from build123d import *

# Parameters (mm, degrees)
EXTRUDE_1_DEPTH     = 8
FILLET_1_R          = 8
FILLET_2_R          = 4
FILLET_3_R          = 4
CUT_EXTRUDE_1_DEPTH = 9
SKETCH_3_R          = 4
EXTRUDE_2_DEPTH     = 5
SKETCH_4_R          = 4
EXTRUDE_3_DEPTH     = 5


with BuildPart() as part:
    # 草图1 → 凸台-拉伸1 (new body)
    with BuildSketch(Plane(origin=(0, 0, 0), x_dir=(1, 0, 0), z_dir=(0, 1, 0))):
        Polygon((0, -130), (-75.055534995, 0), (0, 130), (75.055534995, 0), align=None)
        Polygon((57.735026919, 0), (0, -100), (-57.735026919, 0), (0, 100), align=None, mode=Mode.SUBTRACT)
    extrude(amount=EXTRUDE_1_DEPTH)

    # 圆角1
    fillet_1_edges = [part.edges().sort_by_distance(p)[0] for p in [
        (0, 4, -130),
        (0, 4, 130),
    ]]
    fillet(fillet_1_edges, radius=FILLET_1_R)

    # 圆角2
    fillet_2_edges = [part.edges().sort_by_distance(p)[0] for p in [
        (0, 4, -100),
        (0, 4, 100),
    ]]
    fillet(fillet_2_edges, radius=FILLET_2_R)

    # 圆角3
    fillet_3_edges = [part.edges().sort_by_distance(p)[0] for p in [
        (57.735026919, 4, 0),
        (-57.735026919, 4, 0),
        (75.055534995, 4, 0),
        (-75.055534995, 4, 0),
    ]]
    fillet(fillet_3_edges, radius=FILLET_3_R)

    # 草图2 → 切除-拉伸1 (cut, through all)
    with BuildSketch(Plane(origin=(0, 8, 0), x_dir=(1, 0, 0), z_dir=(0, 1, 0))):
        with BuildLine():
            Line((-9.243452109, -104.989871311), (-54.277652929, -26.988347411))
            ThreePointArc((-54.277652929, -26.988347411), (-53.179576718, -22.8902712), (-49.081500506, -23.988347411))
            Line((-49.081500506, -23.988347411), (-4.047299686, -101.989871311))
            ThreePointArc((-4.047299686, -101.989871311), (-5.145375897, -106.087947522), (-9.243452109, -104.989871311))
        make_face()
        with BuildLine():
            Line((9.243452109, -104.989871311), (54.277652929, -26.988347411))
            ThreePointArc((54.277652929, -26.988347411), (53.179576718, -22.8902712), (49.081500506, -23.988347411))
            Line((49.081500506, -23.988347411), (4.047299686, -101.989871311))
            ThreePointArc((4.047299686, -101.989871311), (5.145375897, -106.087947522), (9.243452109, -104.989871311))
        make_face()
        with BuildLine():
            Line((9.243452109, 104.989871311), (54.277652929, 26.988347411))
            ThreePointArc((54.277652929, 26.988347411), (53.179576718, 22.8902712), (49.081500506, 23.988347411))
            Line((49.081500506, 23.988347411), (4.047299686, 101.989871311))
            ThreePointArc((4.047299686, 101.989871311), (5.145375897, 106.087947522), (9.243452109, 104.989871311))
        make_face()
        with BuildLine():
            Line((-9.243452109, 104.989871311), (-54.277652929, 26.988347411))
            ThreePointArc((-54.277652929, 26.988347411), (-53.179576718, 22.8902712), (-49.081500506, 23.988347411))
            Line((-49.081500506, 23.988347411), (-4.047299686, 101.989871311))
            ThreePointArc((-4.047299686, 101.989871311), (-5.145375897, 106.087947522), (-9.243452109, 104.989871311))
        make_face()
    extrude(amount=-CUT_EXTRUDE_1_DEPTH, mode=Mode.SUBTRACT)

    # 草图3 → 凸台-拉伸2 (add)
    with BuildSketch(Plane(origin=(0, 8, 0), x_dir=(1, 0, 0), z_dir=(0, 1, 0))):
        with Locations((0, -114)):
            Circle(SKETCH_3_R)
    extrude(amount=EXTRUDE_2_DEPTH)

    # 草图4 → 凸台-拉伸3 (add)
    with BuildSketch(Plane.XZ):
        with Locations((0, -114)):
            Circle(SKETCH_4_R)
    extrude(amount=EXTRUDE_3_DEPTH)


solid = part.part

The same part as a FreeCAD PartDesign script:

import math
import FreeCAD as App
import Part
import Sketcher
from FreeCAD import Vector
Q = App.Units.Quantity


def edges_at(feature, points):
    """Names of the edges that pass closest to the given points."""
    edges = feature.Shape.Edges
    near = lambda p: min(range(len(edges)), key=lambda i: edges[i].distToShape(Part.Vertex(*p))[0])
    return sorted({f"Edge{near(p) + 1}" for p in points})

doc = App.newDocument("Part")
body = doc.addObject("PartDesign::Body", "Body")

# Sketch on XZ plane
sketch1 = body.newObject("Sketcher::SketchObject", "Sketch")
sketch1.AttachmentSupport = (doc.getObject("XZ_Plane"), [""])
sketch1.MapMode = "FlatFace"
sketch1.addGeometry([
    Part.LineSegment(Vector(-75, 0, 0), Vector(0, 130, 0)),  # 0
    Part.LineSegment(Vector(0, 130, 0), Vector(75, 0, 0)),  # 1
    Part.LineSegment(Vector(75, 0, 0), Vector(0, -130, 0)),  # 2
    Part.LineSegment(Vector(0, -130, 0), Vector(-75, 0, 0)),  # 3
    Part.LineSegment(Vector(58, 0, 0), Vector(0, 100, 0)),  # 4
    Part.LineSegment(Vector(0, 100, 0), Vector(-58, 0, 0)),  # 5
    Part.LineSegment(Vector(-58, 0, 0), Vector(0, -100, 0)),  # 6
    Part.LineSegment(Vector(0, -100, 0), Vector(58, 0, 0)),  # 7
], False)
sketch1.addConstraint([
    Sketcher.Constraint("Coincident", 0, 2, 1, 1),
    Sketcher.Constraint("Coincident", 1, 2, 2, 1),
    Sketcher.Constraint("Coincident", 2, 2, 3, 1),
    Sketcher.Constraint("Coincident", 3, 2, 0, 1),
    Sketcher.Constraint("Coincident", 4, 2, 5, 1),
    Sketcher.Constraint("Coincident", 5, 2, 6, 1),
    Sketcher.Constraint("Coincident", 6, 2, 7, 1),
    Sketcher.Constraint("Coincident", 7, 2, 4, 1),
    Sketcher.Constraint("Symmetric", 0, 2, 2, 2, -1, 1),
    Sketcher.Constraint("Symmetric", 1, 2, 3, 2, -1, 1),
    Sketcher.Constraint("Symmetric", 4, 2, 6, 2, -1, 1),
    Sketcher.Constraint("Symmetric", 5, 2, 7, 2, -1, 1),
    Sketcher.Constraint("PointOnObject", 0, 2, -2),
    Sketcher.Constraint("PointOnObject", 1, 2, -1),
    Sketcher.Constraint("PointOnObject", 4, 2, -2),
    Sketcher.Constraint("PointOnObject", 5, 2, -1),
    Sketcher.Constraint("Parallel", 3, 4),
    Sketcher.Constraint("Angle", 0, Q("60 deg")),
    Sketcher.Constraint("DistanceY", -1, 1, 0, 2, 130.0),
    Sketcher.Constraint("DistanceY", -1, 1, 4, 2, 100.0),
])
pad1 = body.newObject("PartDesign::Pad", "Pad")
pad1.Profile = sketch1
pad1.Length = 8
pad1.Reversed = True
doc.recompute()

fillet = body.newObject("PartDesign::Fillet", "Fillet")
fillet.Base = (pad1, edges_at(pad1, [(0, 4, -130), (0, 4, 130)]))
fillet.Radius = 8
doc.recompute()

fillet2 = body.newObject("PartDesign::Fillet", "Fillet001")
fillet2.Base = (fillet, edges_at(fillet, [(0, 4, -100), (0, 4, 100)]))
fillet2.Radius = 4
doc.recompute()

fillet3 = body.newObject("PartDesign::Fillet", "Fillet002")
fillet3.Base = (fillet2, edges_at(fillet2, [
    (57.735, 4, 0),
    (-57.735, 4, 0),
    (75.056, 4, 0),
    (-75.056, 4, 0),
]))
fillet3.Radius = 4

# Sketch on XZ plane
sketch2 = body.newObject("Sketcher::SketchObject", "Sketch001")
sketch2.AttachmentSupport = (doc.getObject("XZ_Plane"), [""])
sketch2.MapMode = "FlatFace"
sketch2.AttachmentOffset = App.Placement(Vector(0, 0, -8), App.Rotation())
sketch2.addGeometry([
    Part.LineSegment(Vector(-54.3, 27, 0), Vector(-9.2, 105, 0)),  # 0
    Part.ArcOfCircle(Part.Circle(Vector(-6.6, 103.5, 0), Vector(0, 0, 1), 3), math.radians(-30), math.radians(150)),  # 1
    Part.LineSegment(Vector(-4, 102, 0), Vector(-49.1, 24, 0)),  # 2
    Part.ArcOfCircle(Part.Circle(Vector(-51.7, 25.5, 0), Vector(0, 0, 1), 3), math.radians(150), math.radians(330)),  # 3
    Part.LineSegment(Vector(9.2, 105, 0), Vector(54.3, 27, 0)),  # 4
    Part.ArcOfCircle(Part.Circle(Vector(51.7, 25.5, 0), Vector(0, 0, 1), 3), math.radians(-150), math.radians(30)),  # 5
    Part.LineSegment(Vector(49.1, 24, 0), Vector(4, 102, 0)),  # 6
    Part.ArcOfCircle(Part.Circle(Vector(6.6, 103.5, 0), Vector(0, 0, 1), 3), math.radians(30), math.radians(210)),  # 7
    Part.LineSegment(Vector(54.3, -27, 0), Vector(9.2, -105, 0)),  # 8
    Part.ArcOfCircle(Part.Circle(Vector(6.6, -103.5, 0), Vector(0, 0, 1), 3), math.radians(150), math.radians(330)),  # 9
    Part.LineSegment(Vector(4, -102, 0), Vector(49.1, -24, 0)),  # 10
    Part.ArcOfCircle(Part.Circle(Vector(51.7, -25.5, 0), Vector(0, 0, 1), 3), math.radians(-30), math.radians(150)),  # 11
    Part.LineSegment(Vector(-9.2, -105, 0), Vector(-54.3, -27, 0)),  # 12
    Part.ArcOfCircle(Part.Circle(Vector(-51.7, -25.5, 0), Vector(0, 0, 1), 3), math.radians(30), math.radians(210)),  # 13
    Part.LineSegment(Vector(-49.1, -24, 0), Vector(-4, -102, 0)),  # 14
    Part.ArcOfCircle(Part.Circle(Vector(-6.6, -103.5, 0), Vector(0, 0, 1), 3), math.radians(-150), math.radians(30)),  # 15
], False)
sketch2.addConstraint([
    Sketcher.Constraint("Tangent", 0, 2, 1, 2),
    Sketcher.Constraint("Tangent", 1, 1, 2, 1),
    Sketcher.Constraint("Tangent", 2, 2, 3, 2),
    Sketcher.Constraint("Tangent", 3, 1, 0, 1),
    Sketcher.Constraint("Tangent", 4, 2, 5, 2),
    Sketcher.Constraint("Tangent", 5, 1, 6, 1),
    Sketcher.Constraint("Tangent", 6, 2, 7, 2),
    Sketcher.Constraint("Tangent", 7, 1, 4, 1),
    Sketcher.Constraint("Tangent", 8, 2, 9, 2),
    Sketcher.Constraint("Tangent", 9, 1, 10, 1),
    Sketcher.Constraint("Tangent", 10, 2, 11, 2),
    Sketcher.Constraint("Tangent", 11, 1, 8, 1),
    Sketcher.Constraint("Tangent", 12, 2, 13, 2),
    Sketcher.Constraint("Tangent", 13, 1, 14, 1),
    Sketcher.Constraint("Tangent", 14, 2, 15, 2),
    Sketcher.Constraint("Tangent", 15, 1, 12, 1),
    Sketcher.Constraint("Equal", 1, 3),
    Sketcher.Constraint("Equal", 3, 5),
    Sketcher.Constraint("Equal", 5, 7),
    Sketcher.Constraint("Equal", 7, 9),
    Sketcher.Constraint("Equal", 9, 11),
    Sketcher.Constraint("Equal", 11, 13),
    Sketcher.Constraint("Equal", 13, 15),
    Sketcher.Constraint("Symmetric", 1, 3, 9, 3, -1, 1),
    Sketcher.Constraint("Symmetric", 3, 3, 11, 3, -1, 1),
    Sketcher.Constraint("Symmetric", 5, 3, 13, 3, -1, 1),
    Sketcher.Constraint("Symmetric", 7, 3, 15, 3, -1, 1),
    Sketcher.Constraint("Symmetric", 3, 3, 5, 3, -2),
    Sketcher.Constraint("Symmetric", 1, 3, 7, 3, -2),
    Sketcher.Constraint("Radius", 1, 3.0),
    Sketcher.Constraint("Angle", 0, Q("60 deg")),
    Sketcher.Constraint("Distance", 0, 90.068402),
    Sketcher.Constraint("DistanceX", 1, 1, -1, 1, 4.0473),
    Sketcher.Constraint("DistanceY", -1, 1, 1, 3, 103.489871),
])
pocket1 = body.newObject("PartDesign::Pocket", "Pocket")
pocket1.Profile = sketch2
pocket1.Type = "ThroughAll"
pocket1.Reversed = True

# Sketch on XZ plane
sketch3 = body.newObject("Sketcher::SketchObject", "Sketch002")
sketch3.AttachmentSupport = (doc.getObject("XZ_Plane"), [""])
sketch3.MapMode = "FlatFace"
sketch3.AttachmentOffset = App.Placement(Vector(0, 0, -8), App.Rotation())
sketch3.addGeometry(Part.Circle(Vector(0, 114, 0), Vector(0, 0, 1), 4), False)
sketch3.addConstraint([
    Sketcher.Constraint("PointOnObject", 0, 3, -2),
    Sketcher.Constraint("Diameter", 0, 8.0),
    Sketcher.Constraint("DistanceY", -1, 1, 0, 3, 114.0),
])
pad2 = body.newObject("PartDesign::Pad", "Pad001")
pad2.Profile = sketch3
pad2.Length = 5
pad2.Reversed = True

# Sketch on XZ plane
sketch4 = body.newObject("Sketcher::SketchObject", "Sketch003")
sketch4.AttachmentSupport = (doc.getObject("XZ_Plane"), [""])
sketch4.MapMode = "FlatFace"
sketch4.addGeometry(Part.Circle(Vector(0, -114, 0), Vector(0, 0, 1), 4), False)
sketch4.addConstraint([
    Sketcher.Constraint("PointOnObject", 0, 3, -2),
    Sketcher.Constraint("Diameter", 0, 8.0),
    Sketcher.Constraint("DistanceY", 0, 3, -1, 1, 114.0),
])
pad3 = body.newObject("PartDesign::Pad", "Pad002")
pad3.Profile = sketch4
pad3.Length = 5

doc.recompute()
